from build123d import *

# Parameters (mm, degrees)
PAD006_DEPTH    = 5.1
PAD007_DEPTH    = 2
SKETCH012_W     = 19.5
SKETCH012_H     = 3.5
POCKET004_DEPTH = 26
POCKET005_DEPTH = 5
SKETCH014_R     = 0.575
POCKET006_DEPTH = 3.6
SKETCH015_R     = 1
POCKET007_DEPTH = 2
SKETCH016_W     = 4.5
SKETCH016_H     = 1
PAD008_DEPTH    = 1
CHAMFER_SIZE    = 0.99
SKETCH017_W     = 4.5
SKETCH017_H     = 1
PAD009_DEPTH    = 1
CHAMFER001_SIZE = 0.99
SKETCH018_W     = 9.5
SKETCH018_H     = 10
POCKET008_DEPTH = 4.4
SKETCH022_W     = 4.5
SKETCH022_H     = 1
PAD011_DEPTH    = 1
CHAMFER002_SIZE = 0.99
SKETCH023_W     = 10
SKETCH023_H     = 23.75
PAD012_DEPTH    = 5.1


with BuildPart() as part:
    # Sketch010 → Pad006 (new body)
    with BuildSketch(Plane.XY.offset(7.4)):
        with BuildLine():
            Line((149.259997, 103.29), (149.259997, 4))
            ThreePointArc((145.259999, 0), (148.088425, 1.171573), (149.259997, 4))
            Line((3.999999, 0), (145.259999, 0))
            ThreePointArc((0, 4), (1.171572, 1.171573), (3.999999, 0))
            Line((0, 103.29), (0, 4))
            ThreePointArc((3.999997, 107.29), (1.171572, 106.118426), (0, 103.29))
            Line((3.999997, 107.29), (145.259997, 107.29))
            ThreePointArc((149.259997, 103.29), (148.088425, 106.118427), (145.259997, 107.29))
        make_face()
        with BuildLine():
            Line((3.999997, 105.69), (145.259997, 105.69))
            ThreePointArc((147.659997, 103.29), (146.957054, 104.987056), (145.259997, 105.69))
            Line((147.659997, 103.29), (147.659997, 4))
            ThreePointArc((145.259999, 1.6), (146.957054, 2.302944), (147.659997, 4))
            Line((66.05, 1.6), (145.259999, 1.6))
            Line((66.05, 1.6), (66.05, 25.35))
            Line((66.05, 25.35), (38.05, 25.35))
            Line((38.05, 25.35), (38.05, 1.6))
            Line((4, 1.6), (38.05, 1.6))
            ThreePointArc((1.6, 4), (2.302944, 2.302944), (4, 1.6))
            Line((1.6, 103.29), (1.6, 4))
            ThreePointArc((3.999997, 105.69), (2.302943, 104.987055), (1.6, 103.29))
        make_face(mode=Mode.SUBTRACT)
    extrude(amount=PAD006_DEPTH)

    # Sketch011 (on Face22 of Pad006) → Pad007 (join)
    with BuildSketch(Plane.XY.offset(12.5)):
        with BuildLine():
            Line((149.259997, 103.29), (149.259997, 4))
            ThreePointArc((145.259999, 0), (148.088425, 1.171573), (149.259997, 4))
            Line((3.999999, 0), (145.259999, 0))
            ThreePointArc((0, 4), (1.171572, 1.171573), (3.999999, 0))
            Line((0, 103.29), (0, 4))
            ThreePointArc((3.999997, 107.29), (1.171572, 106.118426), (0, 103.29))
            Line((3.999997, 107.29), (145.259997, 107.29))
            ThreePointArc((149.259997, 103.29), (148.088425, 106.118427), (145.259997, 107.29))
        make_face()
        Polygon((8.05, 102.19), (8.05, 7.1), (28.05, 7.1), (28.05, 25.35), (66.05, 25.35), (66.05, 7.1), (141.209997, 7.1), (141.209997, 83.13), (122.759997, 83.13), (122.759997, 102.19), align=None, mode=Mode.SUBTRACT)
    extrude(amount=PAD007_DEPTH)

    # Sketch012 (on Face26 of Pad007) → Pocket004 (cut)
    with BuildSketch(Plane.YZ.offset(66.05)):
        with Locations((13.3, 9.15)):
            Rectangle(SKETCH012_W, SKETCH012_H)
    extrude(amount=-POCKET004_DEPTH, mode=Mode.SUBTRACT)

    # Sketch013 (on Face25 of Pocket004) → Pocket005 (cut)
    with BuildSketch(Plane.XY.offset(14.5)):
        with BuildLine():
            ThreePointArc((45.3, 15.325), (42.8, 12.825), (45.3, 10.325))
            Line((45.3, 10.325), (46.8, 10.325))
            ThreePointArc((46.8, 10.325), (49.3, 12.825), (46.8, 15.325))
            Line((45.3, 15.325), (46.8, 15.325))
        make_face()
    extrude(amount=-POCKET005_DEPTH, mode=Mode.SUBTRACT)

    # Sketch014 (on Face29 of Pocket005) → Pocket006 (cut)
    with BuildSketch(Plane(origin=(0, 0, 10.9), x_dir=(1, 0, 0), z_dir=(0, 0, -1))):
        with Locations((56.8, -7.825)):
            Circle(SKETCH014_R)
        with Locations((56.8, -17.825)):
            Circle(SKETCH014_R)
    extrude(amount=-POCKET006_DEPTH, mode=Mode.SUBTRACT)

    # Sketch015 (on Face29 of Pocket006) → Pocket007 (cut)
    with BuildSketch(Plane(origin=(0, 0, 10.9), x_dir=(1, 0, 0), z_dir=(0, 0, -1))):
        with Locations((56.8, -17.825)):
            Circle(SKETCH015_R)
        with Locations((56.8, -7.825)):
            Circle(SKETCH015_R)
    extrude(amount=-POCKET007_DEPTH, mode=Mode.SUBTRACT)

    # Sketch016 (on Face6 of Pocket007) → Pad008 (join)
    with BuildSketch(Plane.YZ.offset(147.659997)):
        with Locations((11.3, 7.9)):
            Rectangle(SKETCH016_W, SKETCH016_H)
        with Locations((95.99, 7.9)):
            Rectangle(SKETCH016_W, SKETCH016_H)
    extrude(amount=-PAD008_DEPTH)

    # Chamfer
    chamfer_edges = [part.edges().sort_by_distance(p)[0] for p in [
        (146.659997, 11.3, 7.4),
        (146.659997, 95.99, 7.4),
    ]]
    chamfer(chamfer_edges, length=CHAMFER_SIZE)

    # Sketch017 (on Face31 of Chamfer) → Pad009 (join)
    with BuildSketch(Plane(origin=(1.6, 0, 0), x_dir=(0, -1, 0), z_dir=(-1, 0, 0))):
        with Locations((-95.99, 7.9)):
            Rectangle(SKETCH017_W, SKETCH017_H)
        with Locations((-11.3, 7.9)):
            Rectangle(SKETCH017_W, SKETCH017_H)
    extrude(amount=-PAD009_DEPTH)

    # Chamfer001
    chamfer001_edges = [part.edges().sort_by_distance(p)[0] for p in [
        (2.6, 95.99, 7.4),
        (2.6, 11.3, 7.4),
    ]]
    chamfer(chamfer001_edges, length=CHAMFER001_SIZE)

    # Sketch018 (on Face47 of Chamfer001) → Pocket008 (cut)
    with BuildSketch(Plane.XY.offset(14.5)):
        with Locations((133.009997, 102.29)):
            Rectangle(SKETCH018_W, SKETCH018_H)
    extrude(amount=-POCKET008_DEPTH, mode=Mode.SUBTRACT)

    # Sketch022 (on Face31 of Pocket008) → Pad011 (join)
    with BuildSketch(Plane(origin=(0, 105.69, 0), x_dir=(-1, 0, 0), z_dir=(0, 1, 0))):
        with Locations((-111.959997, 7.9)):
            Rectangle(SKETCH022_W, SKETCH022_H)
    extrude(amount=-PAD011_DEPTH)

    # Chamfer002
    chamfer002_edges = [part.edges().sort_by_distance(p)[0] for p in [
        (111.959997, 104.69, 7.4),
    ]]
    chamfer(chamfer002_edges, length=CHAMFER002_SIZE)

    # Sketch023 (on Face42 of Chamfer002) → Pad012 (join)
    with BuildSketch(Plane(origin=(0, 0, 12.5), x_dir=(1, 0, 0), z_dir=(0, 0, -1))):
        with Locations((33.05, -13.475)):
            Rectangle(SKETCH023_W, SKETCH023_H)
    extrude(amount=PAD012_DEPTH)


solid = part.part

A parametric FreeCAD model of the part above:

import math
import FreeCAD as App
import Part
import Sketcher
Q = App.Units.Quantity


def edges_at(feature, points):
    """Names of the edges that pass closest to the given points."""
    edges = feature.Shape.Edges
    near = lambda p: min(range(len(edges)), key=lambda i: edges[i].distToShape(Part.Vertex(*p))[0])
    return sorted({f"Edge{near(p) + 1}" for p in points})


def add_polygon(sketch, points):
    """Adds a closed chain of lines whose ends are joined by coincident constraints."""
    first, n = sketch.GeometryCount, len(points)
    for a, b in zip(points, points[1:] + points[:1]):
        sketch.addGeometry(Part.LineSegment(App.Vector(*a, 0), App.Vector(*b, 0)), False)
    for i in range(n):
        sketch.addConstraint(Sketcher.Constraint("Coincident", first + i, 2, first + (i + 1) % n, 1))

doc = App.newDocument("Part")
body = doc.addObject("PartDesign::Body", "Body")

sketch1 = body.newObject("Sketcher::SketchObject", "Sketch")
sketch1.AttachmentSupport = (doc.getObject("XY_Plane"), [""])
sketch1.MapMode = "FlatFace"
sketch1.AttachmentOffset = App.Placement(App.Vector(0, 0, 7.4), App.Rotation())
sketch1.addGeometry([
    Part.LineSegment(App.Vector(149.3, 4, 0), App.Vector(149.3, 103.3, 0)),
    Part.ArcOfCircle(Part.Circle(App.Vector(145.3, 103.3, 0), App.Vector(0, 0, 1), 4), math.radians(0), math.radians(90)),
    Part.LineSegment(App.Vector(145.3, 107.3, 0), App.Vector(4, 107.3, 0)),
    Part.ArcOfCircle(Part.Circle(App.Vector(4, 103.3, 0), App.Vector(0, 0, 1), 4), math.radians(90), math.radians(180)),
    Part.LineSegment(App.Vector(0, 103.3, 0), App.Vector(0, 4, 0)),
    Part.ArcOfCircle(Part.Circle(App.Vector(4, 4, 0), App.Vector(0, 0, 1), 4), math.radians(180), math.radians(270)),
    Part.LineSegment(App.Vector(4, 0, 0), App.Vector(145.3, 0, 0)),
    Part.ArcOfCircle(Part.Circle(App.Vector(145.3, 4, 0), App.Vector(0, 0, 1), 4), math.radians(-90), math.radians(0)),
    Part.LineSegment(App.Vector(4, 105.7, 0), App.Vector(145.3, 105.7, 0)),
    Part.ArcOfCircle(Part.Circle(App.Vector(145.3, 103.3, 0), App.Vector(0, 0, 1), 2.4), math.radians(0), math.radians(90)),
    Part.LineSegment(App.Vector(147.7, 103.3, 0), App.Vector(147.7, 4, 0)),
    Part.ArcOfCircle(Part.Circle(App.Vector(145.3, 4, 0), App.Vector(0, 0, 1), 2.4), math.radians(-90), math.radians(0)),
    Part.LineSegment(App.Vector(145.3, 1.6, 0), App.Vector(66, 1.6, 0)),
    Part.LineSegment(App.Vector(66, 1.6, 0), App.Vector(66, 25.4, 0)),
    Part.LineSegment(App.Vector(66, 25.4, 0), App.Vector(38, 25.4, 0)),
    Part.LineSegment(App.Vector(38, 25.4, 0), App.Vector(38, 1.6, 0)),
    Part.LineSegment(App.Vector(38, 1.6, 0), App.Vector(4, 1.6, 0)),
    Part.ArcOfCircle(Part.Circle(App.Vector(4, 4, 0), App.Vector(0, 0, 1), 2.4), math.radians(-180), math.radians(-90)),
    Part.LineSegment(App.Vector(1.6, 4, 0), App.Vector(1.6, 103.3, 0)),
    Part.ArcOfCircle(Part.Circle(App.Vector(4, 103.3, 0), App.Vector(0, 0, 1), 2.4), math.radians(90), math.radians(180)),
], False)
sketch1.addConstraint([
    Sketcher.Constraint("Tangent", 0, 2, 1, 1),
    Sketcher.Constraint("Tangent", 1, 2, 2, 1),
    Sketcher.Constraint("Tangent", 2, 2, 3, 1),
    Sketcher.Constraint("Tangent", 3, 2, 4, 1),
    Sketcher.Constraint("Tangent", 4, 2, 5, 1),
    Sketcher.Constraint("Tangent", 5, 2, 6, 1),
    Sketcher.Constraint("Tangent", 6, 2, 7, 1),
    Sketcher.Constraint("Tangent", 7, 2, 0, 1),
    Sketcher.Constraint("Tangent", 8, 2, 9, 2),
    Sketcher.Constraint("Tangent", 9, 1, 10, 1),
    Sketcher.Constraint("Tangent", 10, 2, 11, 2),
    Sketcher.Constraint("Tangent", 11, 1, 12, 1),
    Sketcher.Constraint("Coincident", 12, 2, 13, 1),
    Sketcher.Constraint("Coincident", 13, 2, 14, 1),
    Sketcher.Constraint("Coincident", 14, 2, 15, 1),
    Sketcher.Constraint("Coincident", 15, 2, 16, 1),
    Sketcher.Constraint("Tangent", 16, 2, 17, 2),
    Sketcher.Constraint("Tangent", 17, 1, 18, 1),
    Sketcher.Constraint("Tangent", 18, 2, 19, 2),
    Sketcher.Constraint("Tangent", 19, 1, 8, 1),
    Sketcher.Constraint("Vertical", 0),
    Sketcher.Constraint("Horizontal", 2),
    Sketcher.Constraint("Vertical", 4),
    Sketcher.Constraint("Horizontal", 6),
    Sketcher.Constraint("Horizontal", 8),
    Sketcher.Constraint("Vertical", 10),
    Sketcher.Constraint("Horizontal", 12),
    Sketcher.Constraint("Vertical", 13),
    Sketcher.Constraint("Horizontal", 14),
    Sketcher.Constraint("Vertical", 15),
    Sketcher.Constraint("Horizontal", 16),
    Sketcher.Constraint("Vertical", 18),
    Sketcher.Constraint("Coincident", 9, 3, 1, 3),
    Sketcher.Constraint("Coincident", 11, 3, 7, 3),
    Sketcher.Constraint("Coincident", 17, 3, 5, 3),
    Sketcher.Constraint("Coincident", 19, 3, 3, 3),
    Sketcher.Constraint("Equal", 1, 3),
    Sketcher.Constraint("Equal", 3, 5),
    Sketcher.Constraint("Equal", 5, 7),
    Sketcher.Constraint("PointOnObject", 3, 2, -2),
    Sketcher.Constraint("PointOnObject", 5, 2, -1),
    Sketcher.Constraint("Radius", 1, Q("3.999999 mm")),
    Sketcher.Constraint("Radius", 9, Q("2.399999 mm")),
    Sketcher.Constraint("DistanceX", 14, 2, 14, 1, Q("28 mm")),
    Sketcher.Constraint("DistanceX", 2, 2, 2, 1, Q("141.26 mm")),
    Sketcher.Constraint("DistanceX", 12, 2, 12, 1, Q("79.209999 mm")),
    Sketcher.Constraint("DistanceY", 0, 1, 0, 2, Q("99.29 mm")),
    Sketcher.Constraint("DistanceY", 13, 1, 13, 2, Q("23.75 mm")),
])
pad1 = body.newObject("PartDesign::Pad", "Pad")
pad1.Profile = sketch1
pad1.Length = 5.1

sketch2 = body.newObject("Sketcher::SketchObject", "Sketch001")
sketch2.AttachmentSupport = (doc.getObject("XY_Plane"), [""])
sketch2.MapMode = "FlatFace"
sketch2.AttachmentOffset = App.Placement(App.Vector(0, 0, 12.5), App.Rotation())
sketch2.addGeometry(Part.LineSegment(App.Vector(149.3, 4, 0), App.Vector(149.3, 103.3, 0)), False)
sketch2.addGeometry(Part.ArcOfCircle(Part.Circle(App.Vector(145.3, 103.3, 0), App.Vector(0, 0, 1), 4), math.radians(0), math.radians(90)), False)
sketch2.addGeometry(Part.LineSegment(App.Vector(145.3, 107.3, 0), App.Vector(4, 107.3, 0)), False)
sketch2.addGeometry(Part.ArcOfCircle(Part.Circle(App.Vector(4, 103.3, 0), App.Vector(0, 0, 1), 4), math.radians(90), math.radians(180)), False)
sketch2.addGeometry(Part.LineSegment(App.Vector(0, 103.3, 0), App.Vector(0, 4, 0)), False)
sketch2.addGeometry(Part.ArcOfCircle(Part.Circle(App.Vector(4, 4, 0), App.Vector(0, 0, 1), 4), math.radians(180), math.radians(270)), False)
sketch2.addGeometry(Part.LineSegment(App.Vector(4, 0, 0), App.Vector(145.3, 0, 0)), False)
sketch2.addGeometry(Part.ArcOfCircle(Part.Circle(App.Vector(145.3, 4, 0), App.Vector(0, 0, 1), 4), math.radians(-90), math.radians(0)), False)
add_polygon(sketch2, [(8.1, 102.2), (122.8, 102.2), (122.8, 83.1), (141.2, 83.1), (141.2, 7.1), (66, 7.1), (66, 25.4), (28.1, 25.4), (28.1, 7.1), (8.1, 7.1)])
sketch2.addConstraint([
    Sketcher.Constraint("Tangent", 0, 2, 1, 1),
    Sketcher.Constraint("Tangent", 1, 2, 2, 1),
    Sketcher.Constraint("Tangent", 2, 2, 3, 1),
    Sketcher.Constraint("Tangent", 3, 2, 4, 1),
    Sketcher.Constraint("Tangent", 4, 2, 5, 1),
    Sketcher.Constraint("Tangent", 5, 2, 6, 1),
    Sketcher.Constraint("Tangent", 6, 2, 7, 1),
    Sketcher.Constraint("Tangent", 7, 2, 0, 1),
    Sketcher.Constraint("Vertical", 0),
    Sketcher.Constraint("Horizontal", 2),
    Sketcher.Constraint("Vertical", 4),
    Sketcher.Constraint("Horizontal", 6),
    Sketcher.Constraint("Horizontal", 8),
    Sketcher.Constraint("Vertical", 9),
    Sketcher.Constraint("Horizontal", 10),
    Sketcher.Constraint("Vertical", 11),
    Sketcher.Constraint("Horizontal", 12),
    Sketcher.Constraint("Vertical", 13),
    Sketcher.Constraint("Horizontal", 14),
    Sketcher.Constraint("Vertical", 15),
    Sketcher.Constraint("Horizontal", 16),
    Sketcher.Constraint("Vertical", 17),
    Sketcher.Constraint("Equal", 1, 3),
    Sketcher.Constraint("Equal", 3, 5),
    Sketcher.Constraint("Equal", 5, 7),
    Sketcher.Constraint("PointOnObject", 3, 2, -2),
    Sketcher.Constraint("PointOnObject", 5, 2, -1),
    Sketcher.Constraint("Horizontal", 12, 2, 15, 2),
    Sketcher.Constraint("Radius", 1, Q("3.999999 mm")),
    Sketcher.Constraint("DistanceX", 14, 2, 14, 1, Q("38 mm")),
    Sketcher.Constraint("DistanceX", 16, 2, 16, 1, Q("20 mm")),
    Sketcher.Constraint("DistanceX", 2, 2, 2, 1, Q("141.26 mm")),
    Sketcher.Constraint("DistanceX", 10, 1, 10, 2, Q("18.45 mm")),
    Sketcher.Constraint("DistanceY", 0, 1, 0, 2, Q("99.29 mm")),
    Sketcher.Constraint("DistanceY", 9, 2, 9, 1, Q("19.06 mm")),
    Sketcher.Constraint("DistanceY", 11, 2, 11, 1, Q("76.03 mm")),
    Sketcher.Constraint("DistanceY", 13, 1, 13, 2, Q("18.25 mm")),
    Sketcher.Constraint("DistanceY", -1, 1, 11, 2, Q("7.1 mm")),
    Sketcher.Constraint("DistanceX", 8, 2, 1, 3, Q("22.500001 mm")),
    Sketcher.Constraint("DistanceX", -1, 1, 12, 2, Q("66.05 mm")),
])
pad2 = body.newObject("PartDesign::Pad", "Pad001")
pad2.Profile = sketch2
pad2.Length = 2

sketch3 = body.newObject("Sketcher::SketchObject", "Sketch002")
sketch3.AttachmentSupport = (doc.getObject("YZ_Plane"), [""])
sketch3.MapMode = "FlatFace"
sketch3.AttachmentOffset = App.Placement(App.Vector(0, 0, 66.05), App.Rotation())
add_polygon(sketch3, [(3.5, 10.9), (3.5, 7.4), (23.1, 7.4), (23.1, 10.9)])
sketch3.addConstraint([
    Sketcher.Constraint("Vertical", 0),
    Sketcher.Constraint("Horizontal", 1),
    Sketcher.Constraint("Vertical", 2),
    Sketcher.Constraint("Horizontal", 3),
    Sketcher.Constraint("DistanceX", 1, 1, 1, 2, Q("19.5 mm")),
    Sketcher.Constraint("DistanceY", 0, 2, 0, 1, Q("3.5 mm")),
    Sketcher.Constraint("DistanceY", -1, 1, 0, 2, Q("7.4 mm")),
    Sketcher.Constraint("DistanceX", -1, 1, 0, 2, Q("3.55 mm")),
])
pocket1 = body.newObject("PartDesign::Pocket", "Pocket")
pocket1.Profile = sketch3
pocket1.Length = 26

sketch4 = body.newObject("Sketcher::SketchObject", "Sketch003")
sketch4.AttachmentSupport = (doc.getObject("XY_Plane"), [""])
sketch4.MapMode = "FlatFace"
sketch4.AttachmentOffset = App.Placement(App.Vector(0, 0, 14.5), App.Rotation())
sketch4.addGeometry([
    Part.ArcOfCircle(Part.Circle(App.Vector(45.3, 12.8, 0), App.Vector(0, 0, 1), 2.5), math.radians(90), math.radians(270)),
    Part.LineSegment(App.Vector(45.3, 10.3, 0), App.Vector(46.8, 10.3, 0)),
    Part.ArcOfCircle(Part.Circle(App.Vector(46.8, 12.8, 0), App.Vector(0, 0, 1), 2.5), math.radians(-90), math.radians(90)),
    Part.LineSegment(App.Vector(46.8, 15.3, 0), App.Vector(45.3, 15.3, 0)),
], False)
sketch4.addConstraint([
    Sketcher.Constraint("Tangent", 0, 2, 1, 1),
    Sketcher.Constraint("Tangent", 1, 2, 2, 1),
    Sketcher.Constraint("Tangent", 2, 2, 3, 1),
    Sketcher.Constraint("Tangent", 3, 2, 0, 1),
    Sketcher.Constraint("Horizontal", 1),
    Sketcher.Constraint("Horizontal", 3),
    Sketcher.Constraint("Radius", 0, Q("2.5 mm")),
    Sketcher.Constraint("DistanceX", 1, 1, 1, 2, Q("1.5 mm")),
    Sketcher.Constraint("DistanceX", -1, 1, 0, 3, Q("45.3 mm")),
    Sketcher.Constraint("DistanceY", -1, 1, 0, 3, Q("12.825 mm")),
])
pocket2 = body.newObject("PartDesign::Pocket", "Pocket001")
pocket2.Profile = sketch4
pocket2.Length = 5

sketch5 = body.newObject("Sketcher::SketchObject", "Sketch004")
sketch5.AttachmentSupport = (doc.getObject("XY_Plane"), [""])
sketch5.MapMode = "FlatFace"
sketch5.AttachmentOffset = App.Placement(App.Vector(0, 0, 10.9), App.Rotation())
sketch5.addGeometry([
    Part.Circle(App.Vector(56.8, 7.8, 0), App.Vector(0, 0, 1), 0.6),
    Part.Circle(App.Vector(56.8, 17.8, 0), App.Vector(0, 0, 1), 0.6),
], False)
sketch5.addConstraint([
    Sketcher.Constraint("Equal", 0, 1),
    Sketcher.Constraint("Vertical", 0, 3, 1, 3),
    Sketcher.Constraint("Diameter", 0, Q("1.15 mm")),
    Sketcher.Constraint("DistanceY", 0, 3, 1, 3, Q("10 mm")),
    Sketcher.Constraint("DistanceX", -1, 1, 0, 3, Q("56.8 mm")),
    Sketcher.Constraint("DistanceY", -1, 1, 0, 3, Q("7.825 mm")),
])
pocket3 = body.newObject("PartDesign::Pocket", "Pocket002")
pocket3.Profile = sketch5
pocket3.Length = 3.6
pocket3.Reversed = True

sketch6 = body.newObject("Sketcher::SketchObject", "Sketch005")
sketch6.AttachmentSupport = (doc.getObject("XY_Plane"), [""])
sketch6.MapMode = "FlatFace"
sketch6.AttachmentOffset = App.Placement(App.Vector(0, 0, 10.9), App.Rotation())
sketch6.addGeometry([
    Part.Circle(App.Vector(56.8, 17.8, 0), App.Vector(0, 0, 1), 1),
    Part.Circle(App.Vector(56.8, 7.8, 0), App.Vector(0, 0, 1), 1),
], False)
sketch6.addConstraint([
    Sketcher.Constraint("Equal", 0, 1),
    Sketcher.Constraint("Vertical", 0, 3, 1, 3),
    Sketcher.Constraint("Diameter", 0, Q("2 mm")),
    Sketcher.Constraint("DistanceY", 1, 3, 0, 3, Q("10 mm")),
    Sketcher.Constraint("DistanceX", -1, 1, 0, 3, Q("56.8 mm")),
    Sketcher.Constraint("DistanceY", -1, 1, 0, 3, Q("17.825 mm")),
])
pocket4 = body.newObject("PartDesign::Pocket", "Pocket003")
pocket4.Profile = sketch6
pocket4.Length = 2
pocket4.Reversed = True

sketch7 = body.newObject("Sketcher::SketchObject", "Sketch006")
sketch7.AttachmentSupport = (doc.getObject("YZ_Plane"), [""])
sketch7.MapMode = "FlatFace"
sketch7.AttachmentOffset = App.Placement(App.Vector(0, 0, 147.659997), App.Rotation())
add_polygon(sketch7, [(9.1, 8.4), (9.1, 7.4), (13.6, 7.4), (13.6, 8.4)])
add_polygon(sketch7, [(93.7, 8.4), (93.7, 7.4), (98.2, 7.4), (98.2, 8.4)])
sketch7.addConstraint([
    Sketcher.Constraint("Vertical", 0),
    Sketcher.Constraint("Horizontal", 1),
    Sketcher.Constraint("Vertical", 2),
    Sketcher.Constraint("Horizontal", 3),
    Sketcher.Constraint("Vertical", 4),
    Sketcher.Constraint("Horizontal", 5),
    Sketcher.Constraint("Vertical", 6),
    Sketcher.Constraint("Horizontal", 7),
    Sketcher.Constraint("Horizontal", 1, 2, 4, 2),
    Sketcher.Constraint("Horizontal", 3, 2, 6, 2),
    Sketcher.Constraint("Equal", 3, 5),
    Sketcher.Constraint("DistanceY", 0, 2, 0, 1, Q("1 mm")),
    Sketcher.Constraint("DistanceX", 1, 1, 1, 2, Q("4.5 mm")),
    Sketcher.Constraint("DistanceY", -1, 1, 0, 2, Q("7.4 mm")),
    Sketcher.Constraint("DistanceX", -1, 1, 0, 2, Q("9.05 mm")),
    Sketcher.Constraint("DistanceX", -1, 1, 4, 2, Q("93.74 mm")),
])
pad3 = body.newObject("PartDesign::Pad", "Pad002")
pad3.Profile = sketch7
pad3.Length = 1
pad3.Reversed = True
doc.recompute()

chamfer = body.newObject("PartDesign::Chamfer", "Chamfer")
chamfer.Base = (pad3, edges_at(pad3, [(146.66, 11.3, 7.4), (146.66, 95.99, 7.4)]))
chamfer.Size = 0.99

sketch8 = body.newObject("Sketcher::SketchObject", "Sketch007")
sketch8.AttachmentSupport = (doc.getObject("YZ_Plane"), [""])
sketch8.MapMode = "FlatFace"
sketch8.AttachmentOffset = App.Placement(App.Vector(0, 0, 1.6), App.Rotation())
add_polygon(sketch8, [(98.2, 8.4), (98.2, 7.4), (93.7, 7.4), (93.7, 8.4)])
add_polygon(sketch8, [(13.6, 8.4), (13.6, 7.4), (9.1, 7.4), (9.1, 8.4)])
sketch8.addConstraint([
    Sketcher.Constraint("Vertical", 0),
    Sketcher.Constraint("Horizontal", 1),
    Sketcher.Constraint("Vertical", 2),
    Sketcher.Constraint("Horizontal", 3),
    Sketcher.Constraint("Vertical", 4),
    Sketcher.Constraint("Horizontal", 5),
    Sketcher.Constraint("Vertical", 6),
    Sketcher.Constraint("Horizontal", 7),
    Sketcher.Constraint("Horizontal", 1, 2, 4, 2),
    Sketcher.Constraint("Horizontal", 3, 2, 6, 2),
    Sketcher.Constraint("Equal", 3, 5),
    Sketcher.Constraint("DistanceY", 0, 2, 0, 1, Q("1 mm")),
    Sketcher.Constraint("DistanceX", 1, 2, 1, 1, Q("4.5 mm")),
    Sketcher.Constraint("DistanceY", -1, 1, 0, 2, Q("7.4 mm")),
    Sketcher.Constraint("DistanceX", -1, 1, 0, 2, Q("98.24 mm")),
    Sketcher.Constraint("DistanceX", -1, 1, 4, 2, Q("13.55 mm")),
])
pad4 = body.newObject("PartDesign::Pad", "Pad003")
pad4.Profile = sketch8
pad4.Length = 1
doc.recompute()

chamfer2 = body.newObject("PartDesign::Chamfer", "Chamfer001")
chamfer2.Base = (pad4, edges_at(pad4, [(2.6, 95.99, 7.4), (2.6, 11.3, 7.4)]))
chamfer2.Size = 0.99

sketch9 = body.newObject("Sketcher::SketchObject", "Sketch008")
sketch9.AttachmentSupport = (doc.getObject("XY_Plane"), [""])
sketch9.MapMode = "FlatFace"
sketch9.AttachmentOffset = App.Placement(App.Vector(0, 0, 14.5), App.Rotation())
add_polygon(sketch9, [(128, 107), (128, 97), (138, 97), (138, 107)])
sketch9.addConstraint([
    Sketcher.Constraint("Vertical", 0),
    Sketcher.Constraint("Horizontal", 1),
    Sketcher.Constraint("Vertical", 2),
    Sketcher.Constraint("Horizontal", 3),
    Sketcher.Constraint("DistanceY", 0, 2, 0, 1, Q("10 mm")),
    Sketcher.Constraint("DistanceX", 1, 1, 1, 2, Q("9.5 mm")),
    Sketcher.Constraint("DistanceY", -1, 1, 0, 2, Q("97.29 mm")),
    Sketcher.Constraint("DistanceX", -1, 1, 0, 2, Q("128.259997 mm")),
])
pocket5 = body.newObject("PartDesign::Pocket", "Pocket004")
pocket5.Profile = sketch9
pocket5.Length = 4.4

sketch10 = body.newObject("Sketcher::SketchObject", "Sketch009")
sketch10.AttachmentSupport = (doc.getObject("XZ_Plane"), [""])
sketch10.MapMode = "FlatFace"
sketch10.AttachmentOffset = App.Placement(App.Vector(0, 0, -105.69), App.Rotation())
add_polygon(sketch10, [(114.2, 8.4), (114.2, 7.4), (109.7, 7.4), (109.7, 8.4)])
sketch10.addConstraint([
    Sketcher.Constraint("Vertical", 0),
    Sketcher.Constraint("Horizontal", 1),
    Sketcher.Constraint("Vertical", 2),
    Sketcher.Constraint("Horizontal", 3),
    Sketcher.Constraint("DistanceY", 0, 2, 0, 1, Q("1 mm")),
    Sketcher.Constraint("DistanceX", 1, 2, 1, 1, Q("4.5 mm")),
    Sketcher.Constraint("DistanceY", -1, 1, 0, 2, Q("7.4 mm")),
    Sketcher.Constraint("DistanceX", -1, 1, 0, 2, Q("114.209997 mm")),
])
pad5 = body.newObject("PartDesign::Pad", "Pad004")
pad5.Profile = sketch10
pad5.Length = 1
doc.recompute()

chamfer3 = body.newObject("PartDesign::Chamfer", "Chamfer002")
chamfer3.Base = (pad5, edges_at(pad5, [(111.96, 104.69, 7.4)]))
chamfer3.Size = 0.99

sketch11 = body.newObject("Sketcher::SketchObject", "Sketch010")
sketch11.AttachmentSupport = (doc.getObject("XY_Plane"), [""])
sketch11.MapMode = "FlatFace"
sketch11.AttachmentOffset = App.Placement(App.Vector(0, 0, 12.5), App.Rotation())
add_polygon(sketch11, [(28, 2), (28, 25), (38, 25), (38, 2)])
sketch11.addConstraint([
    Sketcher.Constraint("Vertical", 0),
    Sketcher.Constraint("Horizontal", 1),
    Sketcher.Constraint("Vertical", 2),
    Sketcher.Constraint("Horizontal", 3),
    Sketcher.Constraint("DistanceX", 1, 1, 1, 2, Q("10 mm")),
    Sketcher.Constraint("DistanceY", 0, 1, 0, 2, Q("23.75 mm")),
    Sketcher.Constraint("DistanceY", -1, 1, 2, 2, Q("1.6 mm")),
    Sketcher.Constraint("DistanceX", -1, 1, 0, 2, Q("28.05 mm")),
])
pad6 = body.newObject("PartDesign::Pad", "Pad005")
pad6.Profile = sketch11
pad6.Length = 5.1
pad6.Reversed = True

doc.recompute()
